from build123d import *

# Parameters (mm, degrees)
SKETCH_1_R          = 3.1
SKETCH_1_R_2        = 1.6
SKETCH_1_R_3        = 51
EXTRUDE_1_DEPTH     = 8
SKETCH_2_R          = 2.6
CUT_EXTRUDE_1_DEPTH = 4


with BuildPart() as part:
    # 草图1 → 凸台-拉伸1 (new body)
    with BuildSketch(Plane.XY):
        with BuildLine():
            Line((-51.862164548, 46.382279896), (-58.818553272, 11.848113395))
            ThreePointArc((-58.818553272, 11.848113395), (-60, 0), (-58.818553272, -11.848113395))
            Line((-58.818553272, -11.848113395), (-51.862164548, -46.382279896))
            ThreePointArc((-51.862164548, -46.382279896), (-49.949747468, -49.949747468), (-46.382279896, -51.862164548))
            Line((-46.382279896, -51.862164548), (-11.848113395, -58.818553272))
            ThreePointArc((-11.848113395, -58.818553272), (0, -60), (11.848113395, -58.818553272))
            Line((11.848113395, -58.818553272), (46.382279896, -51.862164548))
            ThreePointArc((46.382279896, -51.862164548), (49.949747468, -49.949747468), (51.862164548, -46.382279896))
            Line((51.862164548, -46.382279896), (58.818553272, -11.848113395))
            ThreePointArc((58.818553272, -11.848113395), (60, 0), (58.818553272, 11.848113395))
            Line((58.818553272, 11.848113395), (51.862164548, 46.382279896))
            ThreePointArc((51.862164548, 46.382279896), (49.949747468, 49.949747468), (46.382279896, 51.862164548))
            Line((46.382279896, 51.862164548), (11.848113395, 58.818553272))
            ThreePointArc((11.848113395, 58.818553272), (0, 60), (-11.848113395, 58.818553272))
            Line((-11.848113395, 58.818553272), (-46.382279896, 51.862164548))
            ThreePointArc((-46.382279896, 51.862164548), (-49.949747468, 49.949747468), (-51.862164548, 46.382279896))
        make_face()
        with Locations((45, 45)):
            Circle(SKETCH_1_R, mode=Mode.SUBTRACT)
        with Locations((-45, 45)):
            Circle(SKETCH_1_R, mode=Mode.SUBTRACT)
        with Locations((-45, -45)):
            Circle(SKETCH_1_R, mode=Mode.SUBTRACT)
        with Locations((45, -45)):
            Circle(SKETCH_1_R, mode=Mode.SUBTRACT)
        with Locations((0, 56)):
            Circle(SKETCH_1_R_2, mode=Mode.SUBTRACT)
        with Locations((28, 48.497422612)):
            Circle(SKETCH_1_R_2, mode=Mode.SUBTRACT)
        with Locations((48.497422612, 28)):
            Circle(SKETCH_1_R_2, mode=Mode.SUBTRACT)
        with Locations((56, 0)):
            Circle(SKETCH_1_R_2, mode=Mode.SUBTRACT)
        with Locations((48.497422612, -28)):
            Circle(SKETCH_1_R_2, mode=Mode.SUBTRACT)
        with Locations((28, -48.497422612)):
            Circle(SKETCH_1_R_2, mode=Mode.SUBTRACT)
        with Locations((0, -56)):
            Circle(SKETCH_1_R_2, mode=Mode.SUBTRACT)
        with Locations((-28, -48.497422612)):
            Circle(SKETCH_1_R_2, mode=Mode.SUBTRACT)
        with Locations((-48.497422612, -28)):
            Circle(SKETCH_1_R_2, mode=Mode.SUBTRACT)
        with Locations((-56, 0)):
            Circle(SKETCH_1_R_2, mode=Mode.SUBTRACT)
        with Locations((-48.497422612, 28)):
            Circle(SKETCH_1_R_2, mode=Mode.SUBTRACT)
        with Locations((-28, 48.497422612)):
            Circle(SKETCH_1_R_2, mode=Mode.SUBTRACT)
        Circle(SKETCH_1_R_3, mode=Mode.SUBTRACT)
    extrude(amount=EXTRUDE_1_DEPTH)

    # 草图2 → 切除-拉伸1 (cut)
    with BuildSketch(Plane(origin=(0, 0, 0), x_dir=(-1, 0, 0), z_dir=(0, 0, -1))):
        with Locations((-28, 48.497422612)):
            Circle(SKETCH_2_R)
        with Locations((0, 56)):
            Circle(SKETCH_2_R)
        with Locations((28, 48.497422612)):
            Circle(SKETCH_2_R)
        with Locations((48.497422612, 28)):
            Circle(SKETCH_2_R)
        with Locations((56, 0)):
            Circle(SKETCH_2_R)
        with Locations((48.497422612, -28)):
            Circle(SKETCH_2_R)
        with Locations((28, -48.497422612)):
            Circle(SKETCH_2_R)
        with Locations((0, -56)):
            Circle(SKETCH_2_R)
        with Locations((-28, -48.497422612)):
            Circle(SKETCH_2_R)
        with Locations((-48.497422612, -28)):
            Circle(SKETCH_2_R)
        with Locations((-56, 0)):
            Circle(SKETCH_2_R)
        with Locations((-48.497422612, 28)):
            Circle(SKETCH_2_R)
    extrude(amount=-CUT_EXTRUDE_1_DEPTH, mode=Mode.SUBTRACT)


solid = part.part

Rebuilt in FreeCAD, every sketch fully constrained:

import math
import FreeCAD as App
import Part
import Sketcher

V = App.Vector
Q = App.Units.Quantity

doc = App.newDocument("Part")
body = doc.addObject("PartDesign::Body", "Body")

# Sketch on XY plane
sketch1 = body.newObject("Sketcher::SketchObject", "Sketch")
sketch1.AttachmentSupport = (doc.getObject("XY_Plane"), [""])
sketch1.MapMode = "FlatFace"
sketch1.addGeometry(Part.LineSegment(V(-51.9, 46.4, 0), V(-58.8, 11.8, 0)), False)
sketch1.addGeometry(Part.ArcOfCircle(Part.Circle(V(0, 0, 0), V(0, 0, 1), 60), math.radians(169), math.radians(191)), False)
sketch1.addGeometry(Part.LineSegment(V(-58.8, -11.8, 0), V(-51.9, -46.4, 0)), False)
sketch1.addGeometry(Part.ArcOfCircle(Part.Circle(V(-45, -45, 0), V(0, 0, 1), 7), math.radians(-169), math.radians(-101)), False)
sketch1.addGeometry(Part.LineSegment(V(-46.4, -51.9, 0), V(-11.8, -58.8, 0)), False)
sketch1.addGeometry(Part.ArcOfCircle(Part.Circle(V(0, 0, 0), V(0, 0, 1), 60), math.radians(-101), math.radians(-79)), False)
sketch1.addGeometry(Part.LineSegment(V(11.8, -58.8, 0), V(46.4, -51.9, 0)), False)
sketch1.addGeometry(Part.ArcOfCircle(Part.Circle(V(45, -45, 0), V(0, 0, 1), 7), math.radians(-79), math.radians(-11)), False)
sketch1.addGeometry(Part.LineSegment(V(51.9, -46.4, 0), V(58.8, -11.8, 0)), False)
sketch1.addGeometry(Part.ArcOfCircle(Part.Circle(V(0, 0, 0), V(0, 0, 1), 60), math.radians(-11), math.radians(11)), False)
sketch1.addGeometry(Part.LineSegment(V(58.8, 11.8, 0), V(51.9, 46.4, 0)), False)
sketch1.addGeometry(Part.ArcOfCircle(Part.Circle(V(45, 45, 0), V(0, 0, 1), 7), math.radians(11), math.radians(79)), False)
sketch1.addGeometry(Part.LineSegment(V(46.4, 51.9, 0), V(11.8, 58.8, 0)), False)
sketch1.addGeometry(Part.ArcOfCircle(Part.Circle(V(0, 0, 0), V(0, 0, 1), 60), math.radians(79), math.radians(101)), False)
sketch1.addGeometry(Part.LineSegment(V(-11.8, 58.8, 0), V(-46.4, 51.9, 0)), False)
sketch1.addGeometry(Part.ArcOfCircle(Part.Circle(V(-45, 45, 0), V(0, 0, 1), 7), math.radians(101), math.radians(169)), False)
sketch1.addGeometry(Part.Circle(V(-45, -45, 0), V(0, 0, 1), 3.1), False)
sketch1.addGeometry(Part.Circle(V(-28, -48.5, 0), V(0, 0, 1), 1.6), False)
sketch1.addGeometry(Part.Circle(V(-48.5, -28, 0), V(0, 0, 1), 1.6), False)
sketch1.addGeometry(Part.Circle(V(0, -56, 0), V(0, 0, 1), 1.6), False)
sketch1.addGeometry(Part.Circle(V(28, -48.5, 0), V(0, 0, 1), 1.6), False)
sketch1.addGeometry(Part.Circle(V(45, -45, 0), V(0, 0, 1), 3.1), False)
sketch1.addGeometry(Part.Circle(V(48.5, -28, 0), V(0, 0, 1), 1.6), False)
sketch1.addGeometry(Part.Circle(V(-56, 0, 0), V(0, 0, 1), 1.6), False)
sketch1.addGeometry(Part.Circle(V(-48.5, 28, 0), V(0, 0, 1), 1.6), False)
sketch1.addGeometry(Part.Circle(V(-45, 45, 0), V(0, 0, 1), 3.1), False)
sketch1.addGeometry(Part.Circle(V(-28, 48.5, 0), V(0, 0, 1), 1.6), False)
sketch1.addGeometry(Part.Circle(V(0, 0, 0), V(0, 0, 1), 51), False)
sketch1.addGeometry(Part.Circle(V(56, 0, 0), V(0, 0, 1), 1.6), False)
sketch1.addGeometry(Part.Circle(V(48.5, 28, 0), V(0, 0, 1), 1.6), False)
sketch1.addGeometry(Part.Circle(V(0, 56, 0), V(0, 0, 1), 1.6), False)
sketch1.addGeometry(Part.Circle(V(28, 48.5, 0), V(0, 0, 1), 1.6), False)
sketch1.addGeometry(Part.Circle(V(45, 45, 0), V(0, 0, 1), 3.1), False)
sketch1.addConstraint(Sketcher.Constraint("Tangent", 0, 2, 1, 1))
sketch1.addConstraint(Sketcher.Constraint("Tangent", 1, 2, 2, 1))
sketch1.addConstraint(Sketcher.Constraint("Tangent", 2, 2, 3, 1))
sketch1.addConstraint(Sketcher.Constraint("Tangent", 3, 2, 4, 1))
sketch1.addConstraint(Sketcher.Constraint("Tangent", 4, 2, 5, 1))
sketch1.addConstraint(Sketcher.Constraint("Tangent", 5, 2, 6, 1))
sketch1.addConstraint(Sketcher.Constraint("Tangent", 6, 2, 7, 1))
sketch1.addConstraint(Sketcher.Constraint("Tangent", 7, 2, 8, 1))
sketch1.addConstraint(Sketcher.Constraint("Tangent", 8, 2, 9, 1))
sketch1.addConstraint(Sketcher.Constraint("Tangent", 9, 2, 10, 1))
sketch1.addConstraint(Sketcher.Constraint("Tangent", 10, 2, 11, 1))
sketch1.addConstraint(Sketcher.Constraint("Tangent", 11, 2, 12, 1))
sketch1.addConstraint(Sketcher.Constraint("Tangent", 12, 2, 13, 1))
sketch1.addConstraint(Sketcher.Constraint("Tangent", 13, 2, 14, 1))
sketch1.addConstraint(Sketcher.Constraint("Tangent", 14, 2, 15, 1))
sketch1.addConstraint(Sketcher.Constraint("Tangent", 15, 2, 0, 1))
sketch1.addConstraint(Sketcher.Constraint("Coincident", 1, 3, -1, 1))
sketch1.addConstraint(Sketcher.Constraint("Coincident", 5, 3, -1, 1))
sketch1.addConstraint(Sketcher.Constraint("Coincident", 9, 3, -1, 1))
sketch1.addConstraint(Sketcher.Constraint("Coincident", 13, 3, -1, 1))
sketch1.addConstraint(Sketcher.Constraint("Coincident", 27, 3, -1, 1))
sketch1.addConstraint(Sketcher.Constraint("Coincident", 16, 3, 3, 3))
sketch1.addConstraint(Sketcher.Constraint("Coincident", 21, 3, 7, 3))
sketch1.addConstraint(Sketcher.Constraint("Coincident", 25, 3, 15, 3))
sketch1.addConstraint(Sketcher.Constraint("Coincident", 32, 3, 11, 3))
sketch1.addConstraint(Sketcher.Constraint("Equal", 1, 5))
sketch1.addConstraint(Sketcher.Constraint("Equal", 3, 7))
sketch1.addConstraint(Sketcher.Constraint("Equal", 5, 9))
sketch1.addConstraint(Sketcher.Constraint("Equal", 7, 11))
sketch1.addConstraint(Sketcher.Constraint("Equal", 9, 13))
sketch1.addConstraint(Sketcher.Constraint("Equal", 11, 15))
sketch1.addConstraint(Sketcher.Constraint("Equal", 17, 18))
sketch1.addConstraint(Sketcher.Constraint("Equal", 18, 19))
sketch1.addConstraint(Sketcher.Constraint("Equal", 19, 20))
sketch1.addConstraint(Sketcher.Constraint("Equal", 16, 21))
sketch1.addConstraint(Sketcher.Constraint("Equal", 20, 22))
sketch1.addConstraint(Sketcher.Constraint("Equal", 22, 23))
sketch1.addConstraint(Sketcher.Constraint("Equal", 23, 24))
sketch1.addConstraint(Sketcher.Constraint("Equal", 21, 25))
sketch1.addConstraint(Sketcher.Constraint("Equal", 24, 26))
sketch1.addConstraint(Sketcher.Constraint("Equal", 26, 28))
sketch1.addConstraint(Sketcher.Constraint("Equal", 28, 29))
sketch1.addConstraint(Sketcher.Constraint("Equal", 29, 30))
sketch1.addConstraint(Sketcher.Constraint("Equal", 30, 31))
sketch1.addConstraint(Sketcher.Constraint("Equal", 25, 32))
sketch1.addConstraint(Sketcher.Constraint("Symmetric", 3, 3, 11, 3, -1, 1))
sketch1.addConstraint(Sketcher.Constraint("Symmetric", 7, 3, 15, 3, -1, 1))
sketch1.addConstraint(Sketcher.Constraint("Symmetric", 22, 3, 24, 3, -1, 1))
sketch1.addConstraint(Sketcher.Constraint("Symmetric", 20, 3, 26, 3, -1, 1))
sketch1.addConstraint(Sketcher.Constraint("Symmetric", 23, 3, 28, 3, -1, 1))
sketch1.addConstraint(Sketcher.Constraint("Symmetric", 18, 3, 29, 3, -1, 1))
sketch1.addConstraint(Sketcher.Constraint("Symmetric", 19, 3, 30, 3, -1, 1))
sketch1.addConstraint(Sketcher.Constraint("Symmetric", 17, 3, 31, 3, -1, 1))
sketch1.addConstraint(Sketcher.Constraint("Symmetric", 3, 3, 7, 3, -2))
sketch1.addConstraint(Sketcher.Constraint("Symmetric", 17, 3, 20, 3, -2))
sketch1.addConstraint(Sketcher.Constraint("Symmetric", 18, 3, 22, 3, -2))
sketch1.addConstraint(Sketcher.Constraint("PointOnObject", 19, 3, -2))
sketch1.addConstraint(Sketcher.Constraint("PointOnObject", 23, 3, -1))
sketch1.addConstraint(Sketcher.Constraint("Perpendicular", 0, 4))
sketch1.addConstraint(Sketcher.Constraint("Diameter", 27, Q("102 mm")))
sketch1.addConstraint(Sketcher.Constraint("Radius", 1, Q("60 mm")))
sketch1.addConstraint(Sketcher.Constraint("Radius", 3, Q("7 mm")))
sketch1.addConstraint(Sketcher.Constraint("Diameter", 16, Q("6.2 mm")))
sketch1.addConstraint(Sketcher.Constraint("Diameter", 17, Q("3.2 mm")))
sketch1.addConstraint(Sketcher.Constraint("DistanceX", 3, 3, -1, 1, Q("45 mm")))
sketch1.addConstraint(Sketcher.Constraint("DistanceX", 17, 3, -1, 1, Q("28 mm")))
sketch1.addConstraint(Sketcher.Constraint("DistanceY", 18, 3, -1, 1, Q("28 mm")))
sketch1.addConstraint(Sketcher.Constraint("DistanceY", 19, 3, -1, 1, Q("56 mm")))
sketch1.addConstraint(Sketcher.Constraint("DistanceX", 23, 3, -1, 1, Q("56 mm")))
sketch1.addConstraint(Sketcher.Constraint("DistanceX", 0, 2, 24, 3, Q("10.321131 mm")))
sketch1.addConstraint(Sketcher.Constraint("DistanceY", 3, 2, 17, 3, Q("3.364742 mm")))
pad1 = body.newObject("PartDesign::Pad", "Pad")
pad1.Profile = sketch1
pad1.Length = 8

# Sketch on XY plane
sketch2 = body.newObject("Sketcher::SketchObject", "Sketch001")
sketch2.AttachmentSupport = (doc.getObject("XY_Plane"), [""])
sketch2.MapMode = "FlatFace"
sketch2.addGeometry(Part.Circle(V(28, 48.5, 0), V(0, 0, 1), 2.6), False)
sketch2.addGeometry(Part.Circle(V(0, 56, 0), V(0, 0, 1), 2.6), False)
sketch2.addGeometry(Part.Circle(V(-28, 48.5, 0), V(0, 0, 1), 2.6), False)
sketch2.addGeometry(Part.Circle(V(-48.5, 28, 0), V(0, 0, 1), 2.6), False)
sketch2.addGeometry(Part.Circle(V(-56, 0, 0), V(0, 0, 1), 2.6), False)
sketch2.addGeometry(Part.Circle(V(-48.5, -28, 0), V(0, 0, 1), 2.6), False)
sketch2.addGeometry(Part.Circle(V(-28, -48.5, 0), V(0, 0, 1), 2.6), False)
sketch2.addGeometry(Part.Circle(V(0, -56, 0), V(0, 0, 1), 2.6), False)
sketch2.addGeometry(Part.Circle(V(28, -48.5, 0), V(0, 0, 1), 2.6), False)
sketch2.addGeometry(Part.Circle(V(48.5, -28, 0), V(0, 0, 1), 2.6), False)
sketch2.addGeometry(Part.Circle(V(56, 0, 0), V(0, 0, 1), 2.6), False)
sketch2.addGeometry(Part.Circle(V(48.5, 28, 0), V(0, 0, 1), 2.6), False)
sketch2.addConstraint(Sketcher.Constraint("Equal", 0, 1))
sketch2.addConstraint(Sketcher.Constraint("Equal", 1, 2))
sketch2.addConstraint(Sketcher.Constraint("Equal", 2, 3))
sketch2.addConstraint(Sketcher.Constraint("Equal", 3, 4))
sketch2.addConstraint(Sketcher.Constraint("Equal", 4, 5))
sketch2.addConstraint(Sketcher.Constraint("Equal", 5, 6))
sketch2.addConstraint(Sketcher.Constraint("Equal", 6, 7))
sketch2.addConstraint(Sketcher.Constraint("Equal", 7, 8))
sketch2.addConstraint(Sketcher.Constraint("Equal", 8, 9))
sketch2.addConstraint(Sketcher.Constraint("Equal", 9, 10))
sketch2.addConstraint(Sketcher.Constraint("Equal", 10, 11))
sketch2.addConstraint(Sketcher.Constraint("Symmetric", 0, 3, 6, 3, -1, 1))
sketch2.addConstraint(Sketcher.Constraint("Symmetric", 1, 3, 7, 3, -1, 1))
sketch2.addConstraint(Sketcher.Constraint("Symmetric", 2, 3, 8, 3, -1, 1))
sketch2.addConstraint(Sketcher.Constraint("Symmetric", 3, 3, 9, 3, -1, 1))
sketch2.addConstraint(Sketcher.Constraint("Symmetric", 4, 3, 10, 3, -1, 1))
sketch2.addConstraint(Sketcher.Constraint("Symmetric", 5, 3, 11, 3, -1, 1))
sketch2.addConstraint(Sketcher.Constraint("Symmetric", 0, 3, 2, 3, -2))
sketch2.addConstraint(Sketcher.Constraint("Symmetric", 5, 3, 9, 3, -2))
sketch2.addConstraint(Sketcher.Constraint("PointOnObject", 1, 3, -2))
sketch2.addConstraint(Sketcher.Constraint("PointOnObject", 4, 3, -1))
sketch2.addConstraint(Sketcher.Constraint("Diameter", 0, Q("5.2 mm")))
sketch2.addConstraint(Sketcher.Constraint("DistanceX", -1, 1, 0, 3, Q("28 mm")))
sketch2.addConstraint(Sketcher.Constraint("DistanceY", -1, 1, 1, 3, Q("56 mm")))
sketch2.addConstraint(Sketcher.Constraint("DistanceY", -1, 1, 3, 3, Q("28 mm")))
sketch2.addConstraint(Sketcher.Constraint("DistanceX", 4, 3, -1, 1, Q("56 mm")))
sketch2.addConstraint(Sketcher.Constraint("DistanceY", -1, 1, 0, 3, Q("48.497423 mm")))
sketch2.addConstraint(Sketcher.Constraint("DistanceX", 3, 3, -1, 1, Q("48.497423 mm")))
pocket1 = body.newObject("PartDesign::Pocket", "Pocket")
pocket1.Profile = sketch2
pocket1.Length = 4
pocket1.Reversed = True

doc.recompute()
